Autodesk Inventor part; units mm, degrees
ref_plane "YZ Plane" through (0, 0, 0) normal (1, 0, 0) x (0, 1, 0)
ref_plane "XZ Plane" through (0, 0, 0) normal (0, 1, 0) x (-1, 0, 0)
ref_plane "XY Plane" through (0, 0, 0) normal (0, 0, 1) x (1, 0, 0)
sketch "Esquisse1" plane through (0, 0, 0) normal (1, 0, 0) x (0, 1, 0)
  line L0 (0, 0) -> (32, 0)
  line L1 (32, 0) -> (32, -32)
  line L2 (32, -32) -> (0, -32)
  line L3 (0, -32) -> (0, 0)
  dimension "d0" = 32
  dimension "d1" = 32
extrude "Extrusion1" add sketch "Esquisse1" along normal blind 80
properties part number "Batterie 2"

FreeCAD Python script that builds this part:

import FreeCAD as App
import Part
import Sketcher
from FreeCAD import Vector

doc = App.newDocument("Part")
params = doc.addObject("Spreadsheet::Sheet", "Params")
for row, (alias, value) in enumerate([
    ("sketch1_width", "32 mm"),
    ("pad1_length", "80 mm"),
], start=1):
    params.set(f"A{row}", alias)
    params.set(f"B{row}", "=" + value)
    params.setAlias(f"B{row}", alias)

body = doc.addObject("PartDesign::Body", "Body")

# Sketch on YZ plane
sketch1 = body.newObject("Sketcher::SketchObject", "Sketch")
sketch1.AttachmentSupport = (doc.getObject("YZ_Plane"), [""])
sketch1.MapMode = "FlatFace"
sketch1.addGeometry(Part.LineSegment(Vector(32, 0, 0), Vector(0, 0, 0)), False)
sketch1.addGeometry(Part.LineSegment(Vector(0, 0, 0), Vector(0, -32, 0)), False)
sketch1.addGeometry(Part.LineSegment(Vector(0, -32, 0), Vector(32, -32, 0)), False)
sketch1.addGeometry(Part.LineSegment(Vector(32, -32, 0), Vector(32, 0, 0)), False)
sketch1.addConstraint(Sketcher.Constraint("Coincident", 0, 2, 1, 1))
sketch1.addConstraint(Sketcher.Constraint("Coincident", 1, 2, 2, 1))
sketch1.addConstraint(Sketcher.Constraint("Coincident", 2, 2, 3, 1))
sketch1.addConstraint(Sketcher.Constraint("Coincident", 3, 2, 0, 1))
sketch1.addConstraint(Sketcher.Constraint("Horizontal", 0))
sketch1.addConstraint(Sketcher.Constraint("Vertical", 1))
sketch1.addConstraint(Sketcher.Constraint("Horizontal", 2))
sketch1.addConstraint(Sketcher.Constraint("Vertical", 3))
sketch1.addConstraint(Sketcher.Constraint("Coincident", 0, 2, -1, 1))
sketch1.addConstraint(Sketcher.Constraint("Equal", 2, 1))
sketch1.addConstraint(Sketcher.Constraint("DistanceX", 0, 2, 0, 1, 32.0))
sketch1.setExpression("Constraints[10]", "Params.sketch1_width")
pad1 = body.newObject("PartDesign::Pad", "Pad")
pad1.Profile = sketch1
pad1.setExpression("Length", "Params.pad1_length")

doc.recompute()
